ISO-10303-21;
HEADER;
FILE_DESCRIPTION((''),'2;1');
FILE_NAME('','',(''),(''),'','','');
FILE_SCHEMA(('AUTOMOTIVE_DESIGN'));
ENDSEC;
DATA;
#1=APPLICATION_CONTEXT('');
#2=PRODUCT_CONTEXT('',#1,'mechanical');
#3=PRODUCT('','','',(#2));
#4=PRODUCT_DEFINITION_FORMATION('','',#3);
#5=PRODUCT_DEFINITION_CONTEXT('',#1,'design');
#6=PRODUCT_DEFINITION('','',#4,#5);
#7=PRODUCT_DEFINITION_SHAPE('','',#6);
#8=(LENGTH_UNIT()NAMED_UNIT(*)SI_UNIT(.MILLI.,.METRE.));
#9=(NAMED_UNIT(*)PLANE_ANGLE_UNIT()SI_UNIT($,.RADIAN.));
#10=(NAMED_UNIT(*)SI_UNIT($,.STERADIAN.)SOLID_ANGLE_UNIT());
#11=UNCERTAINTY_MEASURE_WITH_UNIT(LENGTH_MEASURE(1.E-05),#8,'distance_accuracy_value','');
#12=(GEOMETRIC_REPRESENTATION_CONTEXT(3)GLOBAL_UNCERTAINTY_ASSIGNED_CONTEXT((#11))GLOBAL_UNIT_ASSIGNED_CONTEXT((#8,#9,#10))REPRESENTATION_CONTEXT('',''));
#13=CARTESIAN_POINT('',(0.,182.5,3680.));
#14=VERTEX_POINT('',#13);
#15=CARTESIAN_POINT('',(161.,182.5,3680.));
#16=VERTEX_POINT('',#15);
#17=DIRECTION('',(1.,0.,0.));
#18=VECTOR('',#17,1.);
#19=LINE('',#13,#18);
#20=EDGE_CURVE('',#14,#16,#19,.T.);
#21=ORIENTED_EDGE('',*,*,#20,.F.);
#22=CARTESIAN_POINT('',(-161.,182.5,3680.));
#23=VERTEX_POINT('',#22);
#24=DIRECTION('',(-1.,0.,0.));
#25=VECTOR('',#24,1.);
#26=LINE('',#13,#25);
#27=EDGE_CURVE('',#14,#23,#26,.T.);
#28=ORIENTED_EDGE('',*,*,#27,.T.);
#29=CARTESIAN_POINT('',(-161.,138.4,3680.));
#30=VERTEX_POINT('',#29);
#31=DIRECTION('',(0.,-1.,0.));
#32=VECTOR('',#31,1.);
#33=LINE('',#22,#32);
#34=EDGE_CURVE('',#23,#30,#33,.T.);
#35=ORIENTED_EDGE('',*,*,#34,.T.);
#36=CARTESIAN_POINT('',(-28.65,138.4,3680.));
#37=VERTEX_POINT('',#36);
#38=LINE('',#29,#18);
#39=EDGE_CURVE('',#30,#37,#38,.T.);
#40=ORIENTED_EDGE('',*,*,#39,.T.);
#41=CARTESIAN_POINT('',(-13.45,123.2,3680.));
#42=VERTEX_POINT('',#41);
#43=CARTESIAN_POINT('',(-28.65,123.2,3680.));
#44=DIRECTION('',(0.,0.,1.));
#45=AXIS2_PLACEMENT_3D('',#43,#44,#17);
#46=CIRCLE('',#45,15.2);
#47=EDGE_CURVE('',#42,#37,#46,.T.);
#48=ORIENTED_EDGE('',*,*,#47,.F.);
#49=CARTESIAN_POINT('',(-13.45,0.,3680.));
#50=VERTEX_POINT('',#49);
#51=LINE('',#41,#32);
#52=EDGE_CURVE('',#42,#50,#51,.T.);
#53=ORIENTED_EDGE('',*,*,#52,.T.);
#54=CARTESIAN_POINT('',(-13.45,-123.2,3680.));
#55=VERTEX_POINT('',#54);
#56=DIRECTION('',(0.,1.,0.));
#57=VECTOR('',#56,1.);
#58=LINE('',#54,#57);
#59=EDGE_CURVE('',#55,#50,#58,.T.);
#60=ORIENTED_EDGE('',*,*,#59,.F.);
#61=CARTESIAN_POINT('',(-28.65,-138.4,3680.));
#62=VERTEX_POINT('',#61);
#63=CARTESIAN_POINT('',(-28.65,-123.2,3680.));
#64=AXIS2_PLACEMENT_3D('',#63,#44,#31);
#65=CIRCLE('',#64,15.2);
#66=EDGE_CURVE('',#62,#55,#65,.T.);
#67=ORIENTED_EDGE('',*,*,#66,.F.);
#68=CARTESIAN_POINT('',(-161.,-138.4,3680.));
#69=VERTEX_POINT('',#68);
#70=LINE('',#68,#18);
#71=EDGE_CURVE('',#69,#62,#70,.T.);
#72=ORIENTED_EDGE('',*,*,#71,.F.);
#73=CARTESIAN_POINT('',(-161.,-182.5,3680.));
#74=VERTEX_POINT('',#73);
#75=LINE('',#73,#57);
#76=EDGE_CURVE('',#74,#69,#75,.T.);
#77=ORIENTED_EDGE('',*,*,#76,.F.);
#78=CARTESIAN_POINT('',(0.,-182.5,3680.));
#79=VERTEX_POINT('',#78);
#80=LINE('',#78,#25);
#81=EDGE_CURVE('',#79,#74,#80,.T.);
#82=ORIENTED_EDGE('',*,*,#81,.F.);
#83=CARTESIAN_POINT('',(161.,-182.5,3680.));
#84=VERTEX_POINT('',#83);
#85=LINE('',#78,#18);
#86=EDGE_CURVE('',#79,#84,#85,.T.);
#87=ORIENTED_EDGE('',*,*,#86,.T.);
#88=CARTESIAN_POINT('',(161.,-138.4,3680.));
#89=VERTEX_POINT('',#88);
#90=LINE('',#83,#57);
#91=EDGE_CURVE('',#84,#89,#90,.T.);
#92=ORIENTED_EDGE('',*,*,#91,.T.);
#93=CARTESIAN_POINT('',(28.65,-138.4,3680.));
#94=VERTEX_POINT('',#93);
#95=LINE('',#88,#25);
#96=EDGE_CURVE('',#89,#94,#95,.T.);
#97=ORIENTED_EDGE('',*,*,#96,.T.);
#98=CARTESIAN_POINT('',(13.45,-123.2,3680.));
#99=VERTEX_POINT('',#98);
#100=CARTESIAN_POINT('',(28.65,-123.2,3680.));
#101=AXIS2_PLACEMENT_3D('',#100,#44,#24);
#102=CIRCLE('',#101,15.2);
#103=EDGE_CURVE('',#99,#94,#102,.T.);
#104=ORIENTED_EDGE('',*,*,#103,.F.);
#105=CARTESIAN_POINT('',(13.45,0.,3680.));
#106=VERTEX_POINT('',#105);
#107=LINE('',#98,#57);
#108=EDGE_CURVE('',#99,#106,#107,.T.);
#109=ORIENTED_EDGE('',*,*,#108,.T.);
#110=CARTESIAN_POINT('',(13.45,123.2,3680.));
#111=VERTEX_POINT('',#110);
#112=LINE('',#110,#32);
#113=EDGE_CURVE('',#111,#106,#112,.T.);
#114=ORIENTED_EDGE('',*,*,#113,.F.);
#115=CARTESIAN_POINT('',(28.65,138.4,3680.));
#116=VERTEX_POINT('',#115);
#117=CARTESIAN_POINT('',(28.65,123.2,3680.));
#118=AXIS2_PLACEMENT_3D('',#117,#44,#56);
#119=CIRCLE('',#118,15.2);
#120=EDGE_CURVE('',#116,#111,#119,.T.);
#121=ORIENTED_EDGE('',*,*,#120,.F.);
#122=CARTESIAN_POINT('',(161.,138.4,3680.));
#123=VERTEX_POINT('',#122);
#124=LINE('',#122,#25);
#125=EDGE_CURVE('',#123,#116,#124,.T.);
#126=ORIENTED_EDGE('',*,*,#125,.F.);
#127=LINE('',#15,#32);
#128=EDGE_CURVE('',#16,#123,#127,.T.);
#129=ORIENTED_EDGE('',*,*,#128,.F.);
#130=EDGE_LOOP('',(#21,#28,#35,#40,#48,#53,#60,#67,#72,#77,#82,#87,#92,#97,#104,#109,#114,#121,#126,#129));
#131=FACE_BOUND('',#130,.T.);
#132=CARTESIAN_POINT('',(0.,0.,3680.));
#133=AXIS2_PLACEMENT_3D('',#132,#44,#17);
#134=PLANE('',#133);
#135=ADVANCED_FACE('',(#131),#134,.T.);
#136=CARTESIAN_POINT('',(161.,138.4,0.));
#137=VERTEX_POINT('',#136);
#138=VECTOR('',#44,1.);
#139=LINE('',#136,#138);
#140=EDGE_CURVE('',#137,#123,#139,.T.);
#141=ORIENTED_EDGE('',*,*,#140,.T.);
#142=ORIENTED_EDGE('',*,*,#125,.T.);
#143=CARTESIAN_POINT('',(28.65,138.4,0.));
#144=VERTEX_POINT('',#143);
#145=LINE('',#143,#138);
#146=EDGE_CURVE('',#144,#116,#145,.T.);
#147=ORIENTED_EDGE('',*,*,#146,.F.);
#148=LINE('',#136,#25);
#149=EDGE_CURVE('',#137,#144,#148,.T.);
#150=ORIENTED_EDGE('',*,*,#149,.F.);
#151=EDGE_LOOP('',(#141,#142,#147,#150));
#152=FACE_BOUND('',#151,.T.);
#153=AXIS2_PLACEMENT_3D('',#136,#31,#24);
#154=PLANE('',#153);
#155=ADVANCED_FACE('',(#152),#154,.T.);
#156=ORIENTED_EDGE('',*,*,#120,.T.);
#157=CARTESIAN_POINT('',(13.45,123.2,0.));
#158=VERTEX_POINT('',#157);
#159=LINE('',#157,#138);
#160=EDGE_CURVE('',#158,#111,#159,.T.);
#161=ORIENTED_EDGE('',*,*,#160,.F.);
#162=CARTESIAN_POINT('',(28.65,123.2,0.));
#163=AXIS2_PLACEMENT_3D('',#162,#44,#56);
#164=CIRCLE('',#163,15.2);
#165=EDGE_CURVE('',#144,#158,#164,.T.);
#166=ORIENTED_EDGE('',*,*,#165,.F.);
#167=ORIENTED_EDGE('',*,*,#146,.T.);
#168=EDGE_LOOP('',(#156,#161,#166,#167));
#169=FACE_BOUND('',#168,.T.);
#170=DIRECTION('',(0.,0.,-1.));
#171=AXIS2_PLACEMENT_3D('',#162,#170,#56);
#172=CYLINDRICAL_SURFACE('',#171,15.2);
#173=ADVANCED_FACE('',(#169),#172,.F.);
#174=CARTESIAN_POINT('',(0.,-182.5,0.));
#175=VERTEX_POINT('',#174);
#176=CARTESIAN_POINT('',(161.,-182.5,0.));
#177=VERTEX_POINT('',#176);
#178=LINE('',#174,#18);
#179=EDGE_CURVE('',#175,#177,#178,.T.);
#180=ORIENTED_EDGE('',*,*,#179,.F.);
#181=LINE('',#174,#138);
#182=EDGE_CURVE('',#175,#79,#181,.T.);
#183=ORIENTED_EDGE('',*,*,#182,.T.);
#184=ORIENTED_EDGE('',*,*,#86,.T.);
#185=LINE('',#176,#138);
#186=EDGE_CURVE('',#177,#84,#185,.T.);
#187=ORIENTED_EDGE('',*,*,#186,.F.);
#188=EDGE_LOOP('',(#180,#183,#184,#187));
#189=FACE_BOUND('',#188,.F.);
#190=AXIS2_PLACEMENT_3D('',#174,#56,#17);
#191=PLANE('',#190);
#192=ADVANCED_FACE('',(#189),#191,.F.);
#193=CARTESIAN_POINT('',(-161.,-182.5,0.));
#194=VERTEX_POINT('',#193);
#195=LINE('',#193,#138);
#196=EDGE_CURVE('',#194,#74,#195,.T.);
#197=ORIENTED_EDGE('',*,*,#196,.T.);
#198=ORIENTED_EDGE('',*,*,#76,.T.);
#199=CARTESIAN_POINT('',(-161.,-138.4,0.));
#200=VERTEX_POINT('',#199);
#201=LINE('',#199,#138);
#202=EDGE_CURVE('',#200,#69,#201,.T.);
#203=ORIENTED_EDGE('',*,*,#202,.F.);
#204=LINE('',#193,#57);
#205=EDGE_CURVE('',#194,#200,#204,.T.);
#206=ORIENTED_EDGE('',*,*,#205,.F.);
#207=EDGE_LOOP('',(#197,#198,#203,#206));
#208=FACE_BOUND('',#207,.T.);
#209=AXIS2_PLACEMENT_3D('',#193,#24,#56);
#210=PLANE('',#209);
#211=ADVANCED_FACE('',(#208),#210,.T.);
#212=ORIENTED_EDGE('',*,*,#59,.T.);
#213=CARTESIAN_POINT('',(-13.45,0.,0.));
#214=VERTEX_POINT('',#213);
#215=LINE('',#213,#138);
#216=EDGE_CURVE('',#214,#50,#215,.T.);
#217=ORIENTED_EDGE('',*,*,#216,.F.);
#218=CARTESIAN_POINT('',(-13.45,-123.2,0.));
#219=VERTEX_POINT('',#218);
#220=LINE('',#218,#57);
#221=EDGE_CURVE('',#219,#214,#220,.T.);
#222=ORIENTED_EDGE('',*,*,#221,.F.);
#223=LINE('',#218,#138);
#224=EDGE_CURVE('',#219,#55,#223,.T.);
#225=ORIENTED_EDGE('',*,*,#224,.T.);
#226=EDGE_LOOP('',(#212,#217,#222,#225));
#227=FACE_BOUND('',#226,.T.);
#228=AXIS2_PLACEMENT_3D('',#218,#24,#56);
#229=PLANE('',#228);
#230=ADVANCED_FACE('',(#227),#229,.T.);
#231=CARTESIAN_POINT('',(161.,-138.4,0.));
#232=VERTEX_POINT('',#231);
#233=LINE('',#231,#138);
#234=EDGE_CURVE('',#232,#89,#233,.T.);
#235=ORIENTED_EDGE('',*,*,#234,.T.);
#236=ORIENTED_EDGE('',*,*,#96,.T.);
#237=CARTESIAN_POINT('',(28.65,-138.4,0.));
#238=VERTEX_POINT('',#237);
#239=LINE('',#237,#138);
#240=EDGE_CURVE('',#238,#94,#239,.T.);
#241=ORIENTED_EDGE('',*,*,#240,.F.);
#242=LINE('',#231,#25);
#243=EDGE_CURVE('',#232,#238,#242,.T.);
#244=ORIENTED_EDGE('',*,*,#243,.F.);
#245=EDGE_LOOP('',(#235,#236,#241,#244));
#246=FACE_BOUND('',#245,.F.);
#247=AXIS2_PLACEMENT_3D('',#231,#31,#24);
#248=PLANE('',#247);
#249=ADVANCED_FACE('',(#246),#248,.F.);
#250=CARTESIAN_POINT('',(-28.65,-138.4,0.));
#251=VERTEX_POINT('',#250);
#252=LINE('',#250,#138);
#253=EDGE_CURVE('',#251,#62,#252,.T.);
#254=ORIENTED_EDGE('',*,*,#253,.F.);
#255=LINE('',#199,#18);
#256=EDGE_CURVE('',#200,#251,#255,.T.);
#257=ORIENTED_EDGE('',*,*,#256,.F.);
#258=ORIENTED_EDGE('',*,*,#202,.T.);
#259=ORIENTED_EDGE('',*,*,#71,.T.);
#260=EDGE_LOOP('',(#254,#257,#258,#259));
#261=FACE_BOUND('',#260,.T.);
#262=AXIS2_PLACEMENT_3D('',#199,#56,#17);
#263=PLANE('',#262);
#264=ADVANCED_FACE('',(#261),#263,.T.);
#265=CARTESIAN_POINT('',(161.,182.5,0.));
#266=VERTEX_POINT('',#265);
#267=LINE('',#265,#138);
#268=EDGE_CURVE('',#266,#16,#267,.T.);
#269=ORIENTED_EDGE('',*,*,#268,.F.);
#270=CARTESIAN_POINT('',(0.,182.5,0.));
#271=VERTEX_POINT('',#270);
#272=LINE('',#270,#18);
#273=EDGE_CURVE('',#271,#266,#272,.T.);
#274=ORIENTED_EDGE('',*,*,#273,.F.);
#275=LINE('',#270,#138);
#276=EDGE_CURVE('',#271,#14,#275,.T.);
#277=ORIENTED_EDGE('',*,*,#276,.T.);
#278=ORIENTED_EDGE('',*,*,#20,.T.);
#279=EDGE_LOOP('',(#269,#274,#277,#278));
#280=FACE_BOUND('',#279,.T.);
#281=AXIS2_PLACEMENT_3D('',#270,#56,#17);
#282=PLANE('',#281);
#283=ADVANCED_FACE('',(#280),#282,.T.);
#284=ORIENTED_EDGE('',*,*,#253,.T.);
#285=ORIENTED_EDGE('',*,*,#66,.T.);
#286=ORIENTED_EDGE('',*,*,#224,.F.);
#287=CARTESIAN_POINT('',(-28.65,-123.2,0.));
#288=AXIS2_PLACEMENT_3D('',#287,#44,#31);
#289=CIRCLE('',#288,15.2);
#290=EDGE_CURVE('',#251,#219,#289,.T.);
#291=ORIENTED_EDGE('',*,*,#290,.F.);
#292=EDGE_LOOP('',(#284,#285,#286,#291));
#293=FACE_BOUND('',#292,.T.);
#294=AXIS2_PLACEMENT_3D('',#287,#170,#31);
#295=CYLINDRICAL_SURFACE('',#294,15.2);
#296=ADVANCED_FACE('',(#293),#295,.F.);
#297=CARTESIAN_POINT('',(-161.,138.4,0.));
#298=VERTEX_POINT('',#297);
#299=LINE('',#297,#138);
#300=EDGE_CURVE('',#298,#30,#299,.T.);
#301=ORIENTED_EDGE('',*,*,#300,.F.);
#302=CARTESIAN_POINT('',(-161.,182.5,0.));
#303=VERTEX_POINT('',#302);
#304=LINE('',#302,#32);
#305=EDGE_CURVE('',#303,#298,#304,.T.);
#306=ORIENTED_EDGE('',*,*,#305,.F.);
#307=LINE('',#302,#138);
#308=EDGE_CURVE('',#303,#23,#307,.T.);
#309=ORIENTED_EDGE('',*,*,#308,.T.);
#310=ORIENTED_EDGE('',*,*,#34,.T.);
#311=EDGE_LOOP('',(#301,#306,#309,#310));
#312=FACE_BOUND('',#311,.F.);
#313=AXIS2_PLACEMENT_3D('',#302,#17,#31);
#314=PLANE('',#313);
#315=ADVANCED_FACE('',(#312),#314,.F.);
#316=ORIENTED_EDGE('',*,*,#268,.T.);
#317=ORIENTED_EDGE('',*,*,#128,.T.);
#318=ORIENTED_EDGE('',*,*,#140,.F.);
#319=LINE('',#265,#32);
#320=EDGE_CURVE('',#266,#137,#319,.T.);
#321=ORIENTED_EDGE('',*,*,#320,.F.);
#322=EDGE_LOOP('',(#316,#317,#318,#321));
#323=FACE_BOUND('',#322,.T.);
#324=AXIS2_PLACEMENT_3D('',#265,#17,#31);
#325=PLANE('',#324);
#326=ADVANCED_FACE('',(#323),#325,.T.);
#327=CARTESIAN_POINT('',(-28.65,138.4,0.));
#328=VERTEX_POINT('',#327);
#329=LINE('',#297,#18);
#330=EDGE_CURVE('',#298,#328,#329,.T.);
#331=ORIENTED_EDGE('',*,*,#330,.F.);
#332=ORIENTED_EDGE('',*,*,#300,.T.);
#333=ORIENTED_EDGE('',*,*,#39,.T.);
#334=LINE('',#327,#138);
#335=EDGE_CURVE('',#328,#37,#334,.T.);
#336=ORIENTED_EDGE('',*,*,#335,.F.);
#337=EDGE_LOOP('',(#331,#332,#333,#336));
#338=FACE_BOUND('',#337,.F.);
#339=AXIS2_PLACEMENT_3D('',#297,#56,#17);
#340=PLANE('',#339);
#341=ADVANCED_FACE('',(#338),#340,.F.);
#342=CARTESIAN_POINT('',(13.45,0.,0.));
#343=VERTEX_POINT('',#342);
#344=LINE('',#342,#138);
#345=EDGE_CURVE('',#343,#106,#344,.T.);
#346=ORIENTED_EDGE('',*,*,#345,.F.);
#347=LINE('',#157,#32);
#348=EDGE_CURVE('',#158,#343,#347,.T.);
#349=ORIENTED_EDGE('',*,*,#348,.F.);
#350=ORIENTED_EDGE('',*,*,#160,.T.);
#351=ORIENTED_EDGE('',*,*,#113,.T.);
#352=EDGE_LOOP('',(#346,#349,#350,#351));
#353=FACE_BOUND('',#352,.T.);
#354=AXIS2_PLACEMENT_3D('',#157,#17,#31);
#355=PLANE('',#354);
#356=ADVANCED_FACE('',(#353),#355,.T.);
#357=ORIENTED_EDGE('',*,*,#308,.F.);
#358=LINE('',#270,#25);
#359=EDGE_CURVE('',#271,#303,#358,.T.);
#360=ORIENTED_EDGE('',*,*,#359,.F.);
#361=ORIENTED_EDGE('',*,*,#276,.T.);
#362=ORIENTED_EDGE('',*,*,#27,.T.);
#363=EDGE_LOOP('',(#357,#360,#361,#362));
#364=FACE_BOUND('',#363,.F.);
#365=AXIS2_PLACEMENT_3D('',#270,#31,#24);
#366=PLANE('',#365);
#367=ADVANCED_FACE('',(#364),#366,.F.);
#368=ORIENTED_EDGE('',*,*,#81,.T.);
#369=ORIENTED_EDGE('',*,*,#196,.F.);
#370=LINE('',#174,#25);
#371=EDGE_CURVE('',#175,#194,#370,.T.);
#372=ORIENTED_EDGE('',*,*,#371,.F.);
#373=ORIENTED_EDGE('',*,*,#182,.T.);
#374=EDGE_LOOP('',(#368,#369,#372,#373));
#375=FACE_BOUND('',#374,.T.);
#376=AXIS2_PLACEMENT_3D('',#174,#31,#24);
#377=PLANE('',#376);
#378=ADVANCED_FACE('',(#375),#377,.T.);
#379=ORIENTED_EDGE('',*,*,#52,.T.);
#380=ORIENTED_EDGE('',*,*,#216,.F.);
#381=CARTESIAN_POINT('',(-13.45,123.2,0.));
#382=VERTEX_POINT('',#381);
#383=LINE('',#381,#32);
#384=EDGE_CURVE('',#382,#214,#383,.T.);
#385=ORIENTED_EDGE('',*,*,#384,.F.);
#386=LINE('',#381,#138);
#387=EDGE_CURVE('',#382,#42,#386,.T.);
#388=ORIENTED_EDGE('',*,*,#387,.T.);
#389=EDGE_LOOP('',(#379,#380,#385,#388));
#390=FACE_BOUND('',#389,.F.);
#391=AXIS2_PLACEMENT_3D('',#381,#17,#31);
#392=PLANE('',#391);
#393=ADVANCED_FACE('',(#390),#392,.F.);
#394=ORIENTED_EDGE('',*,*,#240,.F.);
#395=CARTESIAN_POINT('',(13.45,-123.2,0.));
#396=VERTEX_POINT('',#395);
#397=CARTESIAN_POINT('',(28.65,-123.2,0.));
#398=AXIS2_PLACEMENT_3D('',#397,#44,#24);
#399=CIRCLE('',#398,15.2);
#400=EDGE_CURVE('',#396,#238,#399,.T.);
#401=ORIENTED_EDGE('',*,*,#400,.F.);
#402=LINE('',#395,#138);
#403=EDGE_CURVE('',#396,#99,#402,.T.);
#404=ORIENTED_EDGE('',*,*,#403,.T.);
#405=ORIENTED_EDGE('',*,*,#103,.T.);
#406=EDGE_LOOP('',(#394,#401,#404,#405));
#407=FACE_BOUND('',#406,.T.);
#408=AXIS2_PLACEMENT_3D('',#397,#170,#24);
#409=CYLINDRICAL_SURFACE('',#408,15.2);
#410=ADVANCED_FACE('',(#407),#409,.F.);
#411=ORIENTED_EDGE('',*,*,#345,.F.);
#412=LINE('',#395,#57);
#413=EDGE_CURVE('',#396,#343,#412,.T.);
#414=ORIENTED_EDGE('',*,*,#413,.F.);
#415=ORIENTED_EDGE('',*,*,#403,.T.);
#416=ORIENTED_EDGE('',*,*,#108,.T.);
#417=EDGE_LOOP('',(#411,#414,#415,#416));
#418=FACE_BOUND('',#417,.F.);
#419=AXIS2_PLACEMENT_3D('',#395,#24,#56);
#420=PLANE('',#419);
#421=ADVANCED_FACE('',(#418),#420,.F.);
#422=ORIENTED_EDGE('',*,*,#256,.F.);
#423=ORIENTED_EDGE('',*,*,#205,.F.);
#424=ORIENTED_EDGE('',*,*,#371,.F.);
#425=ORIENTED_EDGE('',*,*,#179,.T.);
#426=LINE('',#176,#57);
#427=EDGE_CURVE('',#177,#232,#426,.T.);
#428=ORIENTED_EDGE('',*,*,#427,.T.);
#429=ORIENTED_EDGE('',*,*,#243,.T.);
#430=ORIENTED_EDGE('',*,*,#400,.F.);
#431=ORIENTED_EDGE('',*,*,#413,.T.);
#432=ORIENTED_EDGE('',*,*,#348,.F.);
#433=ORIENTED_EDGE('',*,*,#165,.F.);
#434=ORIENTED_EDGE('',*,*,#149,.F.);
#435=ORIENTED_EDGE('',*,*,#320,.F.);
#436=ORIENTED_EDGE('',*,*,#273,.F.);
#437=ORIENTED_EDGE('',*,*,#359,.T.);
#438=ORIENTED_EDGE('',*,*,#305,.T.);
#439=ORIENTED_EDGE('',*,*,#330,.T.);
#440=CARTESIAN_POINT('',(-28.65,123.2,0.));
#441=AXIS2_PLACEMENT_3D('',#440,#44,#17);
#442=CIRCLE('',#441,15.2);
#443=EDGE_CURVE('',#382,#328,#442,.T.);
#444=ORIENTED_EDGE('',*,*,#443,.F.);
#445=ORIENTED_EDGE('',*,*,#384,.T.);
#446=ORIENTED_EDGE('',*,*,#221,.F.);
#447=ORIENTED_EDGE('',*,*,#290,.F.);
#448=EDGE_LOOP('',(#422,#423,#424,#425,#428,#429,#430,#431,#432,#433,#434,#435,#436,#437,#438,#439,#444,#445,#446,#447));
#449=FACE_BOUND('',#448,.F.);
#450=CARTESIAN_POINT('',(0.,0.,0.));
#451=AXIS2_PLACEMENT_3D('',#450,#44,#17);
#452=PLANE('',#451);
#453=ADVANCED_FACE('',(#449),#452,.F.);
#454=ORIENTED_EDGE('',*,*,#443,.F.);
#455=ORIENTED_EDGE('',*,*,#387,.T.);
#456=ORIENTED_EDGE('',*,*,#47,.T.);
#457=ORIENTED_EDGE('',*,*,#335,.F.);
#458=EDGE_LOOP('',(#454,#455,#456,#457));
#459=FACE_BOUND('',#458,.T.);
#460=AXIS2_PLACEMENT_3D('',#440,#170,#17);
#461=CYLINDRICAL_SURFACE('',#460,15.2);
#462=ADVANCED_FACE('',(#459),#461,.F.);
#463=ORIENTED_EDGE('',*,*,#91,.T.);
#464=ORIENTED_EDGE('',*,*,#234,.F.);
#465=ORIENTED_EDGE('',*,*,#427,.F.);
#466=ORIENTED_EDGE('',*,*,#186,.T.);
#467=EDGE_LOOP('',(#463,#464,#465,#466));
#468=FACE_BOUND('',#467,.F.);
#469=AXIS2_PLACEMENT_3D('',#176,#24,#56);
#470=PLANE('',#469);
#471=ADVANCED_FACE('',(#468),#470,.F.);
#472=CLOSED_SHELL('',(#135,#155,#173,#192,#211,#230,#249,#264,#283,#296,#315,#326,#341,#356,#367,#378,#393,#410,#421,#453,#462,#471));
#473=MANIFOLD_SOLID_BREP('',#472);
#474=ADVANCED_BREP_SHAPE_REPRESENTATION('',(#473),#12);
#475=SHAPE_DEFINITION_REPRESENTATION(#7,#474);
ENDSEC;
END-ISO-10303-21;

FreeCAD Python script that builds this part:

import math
import FreeCAD as App
import Part
import Sketcher

doc = App.newDocument("Part")
body = doc.addObject("PartDesign::Body", "Body")

sketch1 = body.newObject("Sketcher::SketchObject", "Sketch")
sketch1.AttachmentSupport = (doc.getObject("XY_Plane"), [""])
sketch1.MapMode = "FlatFace"
sketch1.addGeometry([
    Part.LineSegment(App.Vector(-161, -138, 0), App.Vector(-161, -182, 0)),
    Part.LineSegment(App.Vector(-161, -182, 0), App.Vector(161, -182, 0)),
    Part.LineSegment(App.Vector(161, -182, 0), App.Vector(161, -138, 0)),
    Part.LineSegment(App.Vector(161, -138, 0), App.Vector(29, -138, 0)),
    Part.ArcOfCircle(Part.Circle(App.Vector(29, -123, 0), App.Vector(0, 0, 1), 15), math.radians(180), math.radians(270)),
    Part.LineSegment(App.Vector(13, -123, 0), App.Vector(13, 123, 0)),
    Part.ArcOfCircle(Part.Circle(App.Vector(29, 123, 0), App.Vector(0, 0, 1), 15), math.radians(90), math.radians(180)),
    Part.LineSegment(App.Vector(29, 138, 0), App.Vector(161, 138, 0)),
    Part.LineSegment(App.Vector(161, 138, 0), App.Vector(161, 182, 0)),
    Part.LineSegment(App.Vector(161, 182, 0), App.Vector(-161, 182, 0)),
    Part.LineSegment(App.Vector(-161, 182, 0), App.Vector(-161, 138, 0)),
    Part.LineSegment(App.Vector(-161, 138, 0), App.Vector(-29, 138, 0)),
    Part.ArcOfCircle(Part.Circle(App.Vector(-29, 123, 0), App.Vector(0, 0, 1), 15), math.radians(0), math.radians(90)),
    Part.LineSegment(App.Vector(-13, 123, 0), App.Vector(-13, -123, 0)),
    Part.ArcOfCircle(Part.Circle(App.Vector(-29, -123, 0), App.Vector(0, 0, 1), 15), math.radians(-90), math.radians(0)),
    Part.LineSegment(App.Vector(-29, -138, 0), App.Vector(-161, -138, 0)),
], False)
sketch1.addConstraint([
    Sketcher.Constraint("Coincident", 0, 2, 1, 1),
    Sketcher.Constraint("Coincident", 1, 2, 2, 1),
    Sketcher.Constraint("Coincident", 2, 2, 3, 1),
    Sketcher.Constraint("Tangent", 3, 2, 4, 2),
    Sketcher.Constraint("Tangent", 4, 1, 5, 1),
    Sketcher.Constraint("Tangent", 5, 2, 6, 2),
    Sketcher.Constraint("Tangent", 6, 1, 7, 1),
    Sketcher.Constraint("Coincident", 7, 2, 8, 1),
    Sketcher.Constraint("Coincident", 8, 2, 9, 1),
    Sketcher.Constraint("Coincident", 9, 2, 10, 1),
    Sketcher.Constraint("Coincident", 10, 2, 11, 1),
    Sketcher.Constraint("Tangent", 11, 2, 12, 2),
    Sketcher.Constraint("Tangent", 12, 1, 13, 1),
    Sketcher.Constraint("Tangent", 13, 2, 14, 2),
    Sketcher.Constraint("Tangent", 14, 1, 15, 1),
    Sketcher.Constraint("Coincident", 15, 2, 0, 1),
    Sketcher.Constraint("Vertical", 0),
    Sketcher.Constraint("Horizontal", 1),
    Sketcher.Constraint("Vertical", 2),
    Sketcher.Constraint("Horizontal", 3),
    Sketcher.Constraint("Vertical", 5),
    Sketcher.Constraint("Horizontal", 7),
    Sketcher.Constraint("Vertical", 8),
    Sketcher.Constraint("Horizontal", 9),
    Sketcher.Constraint("Vertical", 10),
    Sketcher.Constraint("Horizontal", 11),
    Sketcher.Constraint("Vertical", 13),
    Sketcher.Constraint("Horizontal", 15),
    Sketcher.Constraint("Equal", 4, 6),
    Sketcher.Constraint("Equal", 6, 12),
    Sketcher.Constraint("Equal", 12, 14),
    Sketcher.Constraint("Symmetric", 4, 3, 12, 3, -1, 1),
    Sketcher.Constraint("Symmetric", 0, 2, 8, 2, -1, 1),
    Sketcher.Constraint("Symmetric", 7, 2, 10, 2, -2),
    Sketcher.Constraint("Symmetric", 2, 2, 15, 2, -2),
    Sketcher.Constraint("Radius", 4, 15.2),
    Sketcher.Constraint("DistanceY", 0, 2, 0, 1, 44.1),
    Sketcher.Constraint("DistanceX", 0, 2, -1, 1, 161.0),
    Sketcher.Constraint("DistanceY", 0, 2, -1, 1, 182.5),
    Sketcher.Constraint("DistanceX", -1, 1, 4, 1, 13.45),
])
pad1 = body.newObject("PartDesign::Pad", "Pad")
pad1.Profile = sketch1
pad1.Length = 3680

doc.recompute()
